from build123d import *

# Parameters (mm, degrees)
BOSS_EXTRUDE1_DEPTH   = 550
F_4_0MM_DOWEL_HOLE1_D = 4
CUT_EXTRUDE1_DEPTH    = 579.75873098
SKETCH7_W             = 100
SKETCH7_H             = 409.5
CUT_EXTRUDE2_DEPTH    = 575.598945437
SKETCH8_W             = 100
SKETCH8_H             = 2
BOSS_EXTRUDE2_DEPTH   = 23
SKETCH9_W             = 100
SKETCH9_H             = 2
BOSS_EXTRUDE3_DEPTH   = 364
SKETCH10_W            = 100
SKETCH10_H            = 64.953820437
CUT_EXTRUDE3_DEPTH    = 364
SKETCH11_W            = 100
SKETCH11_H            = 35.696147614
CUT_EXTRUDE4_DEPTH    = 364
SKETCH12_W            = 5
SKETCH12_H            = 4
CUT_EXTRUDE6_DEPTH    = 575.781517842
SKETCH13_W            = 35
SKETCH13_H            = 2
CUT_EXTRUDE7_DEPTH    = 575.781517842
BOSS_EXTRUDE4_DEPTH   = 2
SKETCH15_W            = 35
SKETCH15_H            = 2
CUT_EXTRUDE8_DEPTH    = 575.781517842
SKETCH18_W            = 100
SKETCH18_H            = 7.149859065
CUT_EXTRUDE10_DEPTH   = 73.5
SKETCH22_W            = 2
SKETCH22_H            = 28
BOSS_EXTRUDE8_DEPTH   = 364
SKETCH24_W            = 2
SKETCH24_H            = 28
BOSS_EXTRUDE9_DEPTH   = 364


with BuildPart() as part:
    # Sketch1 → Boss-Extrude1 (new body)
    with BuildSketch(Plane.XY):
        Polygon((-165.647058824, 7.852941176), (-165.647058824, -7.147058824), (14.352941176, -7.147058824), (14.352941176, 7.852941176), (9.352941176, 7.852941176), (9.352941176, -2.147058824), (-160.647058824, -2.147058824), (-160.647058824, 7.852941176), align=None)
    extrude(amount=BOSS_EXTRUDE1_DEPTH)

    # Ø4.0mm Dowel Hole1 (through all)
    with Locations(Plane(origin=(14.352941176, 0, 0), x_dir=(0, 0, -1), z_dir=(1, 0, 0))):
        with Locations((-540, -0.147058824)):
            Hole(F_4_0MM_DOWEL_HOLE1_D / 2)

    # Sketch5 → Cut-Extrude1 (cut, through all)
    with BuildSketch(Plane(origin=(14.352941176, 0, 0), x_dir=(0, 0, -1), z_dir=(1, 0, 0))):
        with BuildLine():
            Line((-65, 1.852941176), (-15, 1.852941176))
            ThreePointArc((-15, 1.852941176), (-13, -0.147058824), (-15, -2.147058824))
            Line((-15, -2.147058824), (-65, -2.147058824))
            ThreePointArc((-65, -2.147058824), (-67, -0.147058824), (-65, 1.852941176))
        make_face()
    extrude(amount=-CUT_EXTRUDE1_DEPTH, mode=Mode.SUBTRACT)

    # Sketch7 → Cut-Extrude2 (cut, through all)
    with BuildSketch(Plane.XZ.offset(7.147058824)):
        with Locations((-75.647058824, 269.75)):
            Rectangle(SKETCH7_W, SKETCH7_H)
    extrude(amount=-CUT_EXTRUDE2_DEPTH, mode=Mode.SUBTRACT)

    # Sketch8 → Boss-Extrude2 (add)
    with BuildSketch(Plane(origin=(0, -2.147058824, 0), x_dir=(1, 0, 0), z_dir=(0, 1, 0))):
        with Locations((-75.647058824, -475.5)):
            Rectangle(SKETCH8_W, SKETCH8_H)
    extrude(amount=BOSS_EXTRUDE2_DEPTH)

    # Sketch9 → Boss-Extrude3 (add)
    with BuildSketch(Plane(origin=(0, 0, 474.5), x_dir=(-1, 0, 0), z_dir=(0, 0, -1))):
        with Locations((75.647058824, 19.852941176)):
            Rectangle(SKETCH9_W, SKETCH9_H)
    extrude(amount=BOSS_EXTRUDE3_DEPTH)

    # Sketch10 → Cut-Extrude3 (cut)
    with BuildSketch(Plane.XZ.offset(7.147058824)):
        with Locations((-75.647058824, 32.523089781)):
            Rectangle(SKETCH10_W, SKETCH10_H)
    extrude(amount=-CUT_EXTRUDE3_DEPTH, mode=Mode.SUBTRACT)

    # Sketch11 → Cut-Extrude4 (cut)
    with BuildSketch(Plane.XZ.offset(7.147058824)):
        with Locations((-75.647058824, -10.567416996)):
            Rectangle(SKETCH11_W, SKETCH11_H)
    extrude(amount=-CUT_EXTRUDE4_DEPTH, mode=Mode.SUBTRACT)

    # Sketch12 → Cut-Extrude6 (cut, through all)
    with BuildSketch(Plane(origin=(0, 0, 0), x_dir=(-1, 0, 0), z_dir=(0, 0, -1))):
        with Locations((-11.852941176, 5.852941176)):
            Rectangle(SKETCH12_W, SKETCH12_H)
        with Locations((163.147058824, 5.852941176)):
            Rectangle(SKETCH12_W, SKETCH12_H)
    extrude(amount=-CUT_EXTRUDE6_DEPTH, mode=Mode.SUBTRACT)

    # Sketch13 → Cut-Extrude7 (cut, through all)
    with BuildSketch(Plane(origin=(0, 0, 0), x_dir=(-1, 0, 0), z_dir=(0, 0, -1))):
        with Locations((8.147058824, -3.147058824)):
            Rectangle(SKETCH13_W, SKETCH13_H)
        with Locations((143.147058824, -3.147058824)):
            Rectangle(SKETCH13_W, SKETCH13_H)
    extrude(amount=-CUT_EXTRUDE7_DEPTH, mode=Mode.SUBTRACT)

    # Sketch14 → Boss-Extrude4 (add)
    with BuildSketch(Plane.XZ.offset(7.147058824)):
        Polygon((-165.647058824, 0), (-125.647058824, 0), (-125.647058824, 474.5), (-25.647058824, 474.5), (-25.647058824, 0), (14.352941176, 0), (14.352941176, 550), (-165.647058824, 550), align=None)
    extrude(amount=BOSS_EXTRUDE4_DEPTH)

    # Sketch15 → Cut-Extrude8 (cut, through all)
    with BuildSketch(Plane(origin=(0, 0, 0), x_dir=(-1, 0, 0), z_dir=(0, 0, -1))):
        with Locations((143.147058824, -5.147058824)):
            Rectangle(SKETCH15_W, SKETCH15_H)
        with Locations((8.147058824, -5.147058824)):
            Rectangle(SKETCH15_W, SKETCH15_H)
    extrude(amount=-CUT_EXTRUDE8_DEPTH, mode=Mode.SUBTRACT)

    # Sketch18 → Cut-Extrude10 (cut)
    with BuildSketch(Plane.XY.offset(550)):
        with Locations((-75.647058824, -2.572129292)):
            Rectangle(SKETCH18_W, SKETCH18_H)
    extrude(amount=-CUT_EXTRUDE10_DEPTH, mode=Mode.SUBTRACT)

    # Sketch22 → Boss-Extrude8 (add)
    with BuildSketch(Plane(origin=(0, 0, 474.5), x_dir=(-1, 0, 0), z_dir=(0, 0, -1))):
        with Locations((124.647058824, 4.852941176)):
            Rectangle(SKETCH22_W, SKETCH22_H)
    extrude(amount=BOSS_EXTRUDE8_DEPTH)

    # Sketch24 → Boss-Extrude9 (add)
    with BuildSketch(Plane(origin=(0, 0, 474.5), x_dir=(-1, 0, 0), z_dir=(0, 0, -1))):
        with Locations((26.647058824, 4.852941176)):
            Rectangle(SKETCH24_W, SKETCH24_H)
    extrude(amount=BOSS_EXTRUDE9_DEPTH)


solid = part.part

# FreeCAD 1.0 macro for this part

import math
import FreeCAD as App
import Part
import Sketcher
Q = App.Units.Quantity

doc = App.newDocument("Part")
body = doc.addObject("PartDesign::Body", "Body")

# Sketch on XY plane
sketch1 = body.newObject("Sketcher::SketchObject", "Sketch")
sketch1.AttachmentSupport = (doc.getObject("XY_Plane"), [""])
sketch1.MapMode = "FlatFace"
sketch1.addGeometry([
    Part.LineSegment(App.Vector(-165.647059, 7.852941, 0), App.Vector(-165.647059, -7.147059, 0)),  # 0
    Part.LineSegment(App.Vector(-165.647059, -7.147059, 0), App.Vector(14.352941, -7.147059, 0)),  # 1
    Part.LineSegment(App.Vector(14.352941, -7.147059, 0), App.Vector(14.352941, 7.852941, 0)),  # 2
    Part.LineSegment(App.Vector(14.352941, 7.852941, 0), App.Vector(9.352941, 7.852941, 0)),  # 3
    Part.LineSegment(App.Vector(9.352941, 7.852941, 0), App.Vector(9.352941, -2.147059, 0)),  # 4
    Part.LineSegment(App.Vector(9.352941, -2.147059, 0), App.Vector(-160.647059, -2.147059, 0)),  # 5
    Part.LineSegment(App.Vector(-160.647059, -2.147059, 0), App.Vector(-160.647059, 7.852941, 0)),  # 6
    Part.LineSegment(App.Vector(-160.647059, 7.852941, 0), App.Vector(-165.647059, 7.852941, 0)),  # 7
], False)
sketch1.addConstraint([
    Sketcher.Constraint("Coincident", 0, 2, 1, 1),
    Sketcher.Constraint("Coincident", 1, 2, 2, 1),
    Sketcher.Constraint("Coincident", 2, 2, 3, 1),
    Sketcher.Constraint("Coincident", 3, 2, 4, 1),
    Sketcher.Constraint("Coincident", 4, 2, 5, 1),
    Sketcher.Constraint("Coincident", 5, 2, 6, 1),
    Sketcher.Constraint("Coincident", 6, 2, 7, 1),
    Sketcher.Constraint("Coincident", 7, 2, 0, 1),
    Sketcher.Constraint("Vertical", 0),
    Sketcher.Constraint("Horizontal", 1),
    Sketcher.Constraint("Vertical", 2),
    Sketcher.Constraint("Horizontal", 3),
    Sketcher.Constraint("Vertical", 4),
    Sketcher.Constraint("Horizontal", 5),
    Sketcher.Constraint("Vertical", 6),
    Sketcher.Constraint("Horizontal", 7),
    Sketcher.Constraint("Horizontal", 3, 2, 6, 2),
    Sketcher.Constraint("Equal", 3, 7),
    Sketcher.Constraint("DistanceX", 1, 1, 1, 2, Q("180 mm")),
    Sketcher.Constraint("DistanceX", 3, 2, 3, 1, Q("5 mm")),
    Sketcher.Constraint("DistanceY", 0, 2, 0, 1, Q("15 mm")),
    Sketcher.Constraint("DistanceY", 4, 2, 4, 1, Q("10 mm")),
    Sketcher.Constraint("DistanceX", 0, 2, -1, 1, Q("165.647059 mm")),
    Sketcher.Constraint("DistanceY", 0, 2, -1, 1, Q("7.147059 mm")),
])
pad1 = body.newObject("PartDesign::Pad", "Pad")
pad1.Profile = sketch1
pad1.Length = 550

# Sketch on YZ plane
sketch2 = body.newObject("Sketcher::SketchObject", "Sketch001")
sketch2.AttachmentSupport = (doc.getObject("YZ_Plane"), [""])
sketch2.MapMode = "FlatFace"
sketch2.AttachmentOffset = App.Placement(App.Vector(0, 0, 14.352941), App.Rotation())
sketch2.addGeometry(Part.Circle(App.Vector(-0.147059, 540, 0), App.Vector(0, 0, 1), 2), False)
sketch2.addConstraint([
    Sketcher.Constraint("Diameter", 0, Q("4 mm")),
    Sketcher.Constraint("DistanceY", -1, 1, 0, 3, Q("540 mm")),
    Sketcher.Constraint("DistanceX", 0, 3, -1, 1, Q("0.147059 mm")),
])
doc.recompute()
hole = body.newObject("PartDesign::Hole", "Hole")
hole.Profile = sketch2
hole.ThreadType = "None"
hole.Diameter = 4
hole.DepthType = "ThroughAll"

# Sketch on YZ plane
sketch3 = body.newObject("Sketcher::SketchObject", "Sketch002")
sketch3.AttachmentSupport = (doc.getObject("YZ_Plane"), [""])
sketch3.MapMode = "FlatFace"
sketch3.AttachmentOffset = App.Placement(App.Vector(0, 0, 14.352941), App.Rotation())
sketch3.addGeometry([
    Part.LineSegment(App.Vector(1.852941, 15, 0), App.Vector(1.852941, 65, 0)),
    Part.ArcOfCircle(Part.Circle(App.Vector(-0.147059, 65, 0), App.Vector(0, 0, 1), 2), math.radians(0), math.radians(180)),
    Part.LineSegment(App.Vector(-2.147059, 65, 0), App.Vector(-2.147059, 15, 0)),
    Part.ArcOfCircle(Part.Circle(App.Vector(-0.147059, 15, 0), App.Vector(0, 0, 1), 2), math.radians(180), math.radians(360)),
], False)
sketch3.addConstraint([
    Sketcher.Constraint("Tangent", 0, 2, 1, 1),
    Sketcher.Constraint("Tangent", 1, 2, 2, 1),
    Sketcher.Constraint("Tangent", 2, 2, 3, 1),
    Sketcher.Constraint("Tangent", 3, 2, 0, 1),
    Sketcher.Constraint("Vertical", 0),
    Sketcher.Constraint("Vertical", 2),
    Sketcher.Constraint("Radius", 1, Q("2 mm")),
    Sketcher.Constraint("DistanceY", 0, 1, 0, 2, Q("50 mm")),
    Sketcher.Constraint("DistanceY", -1, 1, 1, 3, Q("65 mm")),
    Sketcher.Constraint("DistanceX", 1, 3, -1, 1, Q("0.147059 mm")),
])
pocket1 = body.newObject("PartDesign::Pocket", "Pocket")
pocket1.Profile = sketch3
pocket1.Type = "ThroughAll"

# Sketch on XZ plane
sketch4 = body.newObject("Sketcher::SketchObject", "Sketch003")
sketch4.AttachmentSupport = (doc.getObject("XZ_Plane"), [""])
sketch4.MapMode = "FlatFace"
sketch4.AttachmentOffset = App.Placement(App.Vector(0, 0, 7.147059), App.Rotation())
sketch4.addGeometry([
    Part.LineSegment(App.Vector(-125.647059, 474.5, 0), App.Vector(-125.647059, 65, 0)),
    Part.LineSegment(App.Vector(-125.647059, 65, 0), App.Vector(-25.647059, 65, 0)),
    Part.LineSegment(App.Vector(-25.647059, 65, 0), App.Vector(-25.647059, 474.5, 0)),
    Part.LineSegment(App.Vector(-25.647059, 474.5, 0), App.Vector(-125.647059, 474.5, 0)),
], False)
sketch4.addConstraint([
    Sketcher.Constraint("Coincident", 0, 2, 1, 1),
    Sketcher.Constraint("Coincident", 1, 2, 2, 1),
    Sketcher.Constraint("Coincident", 2, 2, 3, 1),
    Sketcher.Constraint("Coincident", 3, 2, 0, 1),
    Sketcher.Constraint("Vertical", 0),
    Sketcher.Constraint("Horizontal", 1),
    Sketcher.Constraint("Vertical", 2),
    Sketcher.Constraint("Horizontal", 3),
    Sketcher.Constraint("DistanceX", 1, 1, 1, 2, Q("100 mm")),
    Sketcher.Constraint("DistanceY", 0, 2, 0, 1, Q("409.5 mm")),
    Sketcher.Constraint("DistanceY", -1, 1, 0, 2, Q("65 mm")),
    Sketcher.Constraint("DistanceX", 0, 2, -1, 1, Q("125.647059 mm")),
])
pocket2 = body.newObject("PartDesign::Pocket", "Pocket001")
pocket2.Profile = sketch4
pocket2.Type = "ThroughAll"

# Sketch on XZ plane
sketch5 = body.newObject("Sketcher::SketchObject", "Sketch004")
sketch5.AttachmentSupport = (doc.getObject("XZ_Plane"), [""])
sketch5.MapMode = "FlatFace"
sketch5.AttachmentOffset = App.Placement(App.Vector(0, 0, 2.147059), App.Rotation())
sketch5.addGeometry([
    Part.LineSegment(App.Vector(-125.647059, 474.5, 0), App.Vector(-125.647059, 476.5, 0)),
    Part.LineSegment(App.Vector(-125.647059, 476.5, 0), App.Vector(-25.647059, 476.5, 0)),
    Part.LineSegment(App.Vector(-25.647059, 476.5, 0), App.Vector(-25.647059, 474.5, 0)),
    Part.LineSegment(App.Vector(-25.647059, 474.5, 0), App.Vector(-125.647059, 474.5, 0)),
], False)
sketch5.addConstraint([
    Sketcher.Constraint("Coincident", 0, 2, 1, 1),
    Sketcher.Constraint("Coincident", 1, 2, 2, 1),
    Sketcher.Constraint("Coincident", 2, 2, 3, 1),
    Sketcher.Constraint("Coincident", 3, 2, 0, 1),
    Sketcher.Constraint("Vertical", 0),
    Sketcher.Constraint("Horizontal", 1),
    Sketcher.Constraint("Vertical", 2),
    Sketcher.Constraint("Horizontal", 3),
    Sketcher.Constraint("DistanceX", 1, 1, 1, 2, Q("100 mm")),
    Sketcher.Constraint("DistanceY", 0, 1, 0, 2, Q("2 mm")),
    Sketcher.Constraint("DistanceY", -1, 1, 0, 2, Q("476.5 mm")),
    Sketcher.Constraint("DistanceX", 0, 2, -1, 1, Q("125.647059 mm")),
])
pad2 = body.newObject("PartDesign::Pad", "Pad001")
pad2.Profile = sketch5
pad2.Length = 23
pad2.Reversed = True

# Sketch on XY plane
sketch6 = body.newObject("Sketcher::SketchObject", "Sketch005")
sketch6.AttachmentSupport = (doc.getObject("XY_Plane"), [""])
sketch6.MapMode = "FlatFace"
sketch6.AttachmentOffset = App.Placement(App.Vector(0, 0, 474.5), App.Rotation())
sketch6.addGeometry([
    Part.LineSegment(App.Vector(-25.647059, 20.852941, 0), App.Vector(-25.647059, 18.852941, 0)),
    Part.LineSegment(App.Vector(-25.647059, 18.852941, 0), App.Vector(-125.647059, 18.852941, 0)),
    Part.LineSegment(App.Vector(-125.647059, 18.852941, 0), App.Vector(-125.647059, 20.852941, 0)),
    Part.LineSegment(App.Vector(-125.647059, 20.852941, 0), App.Vector(-25.647059, 20.852941, 0)),
], False)
sketch6.addConstraint([
    Sketcher.Constraint("Coincident", 0, 2, 1, 1),
    Sketcher.Constraint("Coincident", 1, 2, 2, 1),
    Sketcher.Constraint("Coincident", 2, 2, 3, 1),
    Sketcher.Constraint("Coincident", 3, 2, 0, 1),
    Sketcher.Constraint("Vertical", 0),
    Sketcher.Constraint("Horizontal", 1),
    Sketcher.Constraint("Vertical", 2),
    Sketcher.Constraint("Horizontal", 3),
    Sketcher.Constraint("DistanceX", 1, 2, 1, 1, Q("100 mm")),
    Sketcher.Constraint("DistanceY", 0, 2, 0, 1, Q("2 mm")),
    Sketcher.Constraint("DistanceX", 0, 2, -1, 1, Q("25.647059 mm")),
    Sketcher.Constraint("DistanceY", -1, 1, 0, 2, Q("18.852941 mm")),
])
pad3 = body.newObject("PartDesign::Pad", "Pad002")
pad3.Profile = sketch6
pad3.Length = 364
pad3.Reversed = True

# Sketch on XZ plane
sketch7 = body.newObject("Sketcher::SketchObject", "Sketch006")
sketch7.AttachmentSupport = (doc.getObject("XZ_Plane"), [""])
sketch7.MapMode = "FlatFace"
sketch7.AttachmentOffset = App.Placement(App.Vector(0, 0, 7.147059), App.Rotation())
sketch7.addGeometry([
    Part.LineSegment(App.Vector(-125.647059, 65, 0), App.Vector(-125.647059, 0.04618, 0)),
    Part.LineSegment(App.Vector(-125.647059, 0.04618, 0), App.Vector(-25.647059, 0.04618, 0)),
    Part.LineSegment(App.Vector(-25.647059, 0.04618, 0), App.Vector(-25.647059, 65, 0)),
    Part.LineSegment(App.Vector(-25.647059, 65, 0), App.Vector(-125.647059, 65, 0)),
], False)
sketch7.addConstraint([
    Sketcher.Constraint("Coincident", 0, 2, 1, 1),
    Sketcher.Constraint("Coincident", 1, 2, 2, 1),
    Sketcher.Constraint("Coincident", 2, 2, 3, 1),
    Sketcher.Constraint("Coincident", 3, 2, 0, 1),
    Sketcher.Constraint("Vertical", 0),
    Sketcher.Constraint("Horizontal", 1),
    Sketcher.Constraint("Vertical", 2),
    Sketcher.Constraint("Horizontal", 3),
    Sketcher.Constraint("DistanceX", 1, 1, 1, 2, Q("100 mm")),
    Sketcher.Constraint("DistanceY", -1, 1, 2, 2, Q("65 mm")),
    Sketcher.Constraint("DistanceY", 0, 2, 0, 1, Q("64.95382 mm")),
    Sketcher.Constraint("DistanceX", 0, 2, -1, 1, Q("125.647059 mm")),
])
pocket3 = body.newObject("PartDesign::Pocket", "Pocket002")
pocket3.Profile = sketch7
pocket3.Length = 364

# Sketch on XZ plane
sketch8 = body.newObject("Sketcher::SketchObject", "Sketch007")
sketch8.AttachmentSupport = (doc.getObject("XZ_Plane"), [""])
sketch8.MapMode = "FlatFace"
sketch8.AttachmentOffset = App.Placement(App.Vector(0, 0, 7.147059), App.Rotation())
sketch8.addGeometry([
    Part.LineSegment(App.Vector(-125.647059, 7.280657, 0), App.Vector(-125.647059, -28.415491, 0)),
    Part.LineSegment(App.Vector(-125.647059, -28.415491, 0), App.Vector(-25.647059, -28.415491, 0)),
    Part.LineSegment(App.Vector(-25.647059, -28.415491, 0), App.Vector(-25.647059, 7.280657, 0)),
    Part.LineSegment(App.Vector(-25.647059, 7.280657, 0), App.Vector(-125.647059, 7.280657, 0)),
], False)
sketch8.addConstraint([
    Sketcher.Constraint("Coincident", 0, 2, 1, 1),
    Sketcher.Constraint("Coincident", 1, 2, 2, 1),
    Sketcher.Constraint("Coincident", 2, 2, 3, 1),
    Sketcher.Constraint("Coincident", 3, 2, 0, 1),
    Sketcher.Constraint("Vertical", 0),
    Sketcher.Constraint("Horizontal", 1),
    Sketcher.Constraint("Vertical", 2),
    Sketcher.Constraint("Horizontal", 3),
    Sketcher.Constraint("DistanceX", 1, 1, 1, 2, Q("100 mm")),
    Sketcher.Constraint("DistanceY", 0, 2, 0, 1, Q("35.696148 mm")),
    Sketcher.Constraint("DistanceX", 0, 2, -1, 1, Q("125.647059 mm")),
    Sketcher.Constraint("DistanceY", 0, 2, -1, 1, Q("28.415491 mm")),
])
pocket4 = body.newObject("PartDesign::Pocket", "Pocket003")
pocket4.Profile = sketch8
pocket4.Length = 364

# Sketch on XY plane
sketch9 = body.newObject("Sketcher::SketchObject", "Sketch008")
sketch9.AttachmentSupport = (doc.getObject("XY_Plane"), [""])
sketch9.MapMode = "FlatFace"
sketch9.addGeometry([
    Part.LineSegment(App.Vector(14.352941, 7.852941, 0), App.Vector(14.352941, 3.852941, 0)),  # 0
    Part.LineSegment(App.Vector(14.352941, 3.852941, 0), App.Vector(9.352941, 3.852941, 0)),  # 1
    Part.LineSegment(App.Vector(9.352941, 3.852941, 0), App.Vector(9.352941, 7.852941, 0)),  # 2
    Part.LineSegment(App.Vector(9.352941, 7.852941, 0), App.Vector(14.352941, 7.852941, 0)),  # 3
    Part.LineSegment(App.Vector(-160.647059, 7.852941, 0), App.Vector(-160.647059, 3.852941, 0)),  # 4
    Part.LineSegment(App.Vector(-160.647059, 3.852941, 0), App.Vector(-165.647059, 3.852941, 0)),  # 5
    Part.LineSegment(App.Vector(-165.647059, 3.852941, 0), App.Vector(-165.647059, 7.852941, 0)),  # 6
    Part.LineSegment(App.Vector(-165.647059, 7.852941, 0), App.Vector(-160.647059, 7.852941, 0)),  # 7
], False)
sketch9.addConstraint([
    Sketcher.Constraint("Coincident", 0, 2, 1, 1),
    Sketcher.Constraint("Coincident", 1, 2, 2, 1),
    Sketcher.Constraint("Coincident", 2, 2, 3, 1),
    Sketcher.Constraint("Coincident", 3, 2, 0, 1),
    Sketcher.Constraint("Coincident", 4, 2, 5, 1),
    Sketcher.Constraint("Coincident", 5, 2, 6, 1),
    Sketcher.Constraint("Coincident", 6, 2, 7, 1),
    Sketcher.Constraint("Coincident", 7, 2, 4, 1),
    Sketcher.Constraint("Vertical", 0),
    Sketcher.Constraint("Horizontal", 1),
    Sketcher.Constraint("Vertical", 2),
    Sketcher.Constraint("Horizontal", 3),
    Sketcher.Constraint("Vertical", 4),
    Sketcher.Constraint("Horizontal", 5),
    Sketcher.Constraint("Vertical", 6),
    Sketcher.Constraint("Horizontal", 7),
    Sketcher.Constraint("Horizontal", 1, 2, 4, 2),
    Sketcher.Constraint("Horizontal", 3, 2, 6, 2),
    Sketcher.Constraint("Equal", 3, 5),
    Sketcher.Constraint("DistanceX", 1, 2, 1, 1, Q("5 mm")),
    Sketcher.Constraint("DistanceY", 0, 2, 0, 1, Q("4 mm")),
    Sketcher.Constraint("DistanceX", 4, 2, 1, 2, Q("170 mm")),
    Sketcher.Constraint("DistanceX", -1, 1, 0, 2, Q("14.352941 mm")),
    Sketcher.Constraint("DistanceY", -1, 1, 0, 2, Q("3.852941 mm")),
])
pocket5 = body.newObject("PartDesign::Pocket", "Pocket004")
pocket5.Profile = sketch9
pocket5.Type = "ThroughAll"
pocket5.Reversed = True

# Sketch on XY plane
sketch10 = body.newObject("Sketcher::SketchObject", "Sketch009")
sketch10.AttachmentSupport = (doc.getObject("XY_Plane"), [""])
sketch10.MapMode = "FlatFace"
sketch10.addGeometry([
    Part.LineSegment(App.Vector(9.352941, -2.147059, 0), App.Vector(9.352941, -4.147059, 0)),  # 0
    Part.LineSegment(App.Vector(9.352941, -4.147059, 0), App.Vector(-25.647059, -4.147059, 0)),  # 1
    Part.LineSegment(App.Vector(-25.647059, -4.147059, 0), App.Vector(-25.647059, -2.147059, 0)),  # 2
    Part.LineSegment(App.Vector(-25.647059, -2.147059, 0), App.Vector(9.352941, -2.147059, 0)),  # 3
    Part.LineSegment(App.Vector(-125.647059, -2.147059, 0), App.Vector(-125.647059, -4.147059, 0)),  # 4
    Part.LineSegment(App.Vector(-125.647059, -4.147059, 0), App.Vector(-160.647059, -4.147059, 0)),  # 5
    Part.LineSegment(App.Vector(-160.647059, -4.147059, 0), App.Vector(-160.647059, -2.147059, 0)),  # 6
    Part.LineSegment(App.Vector(-160.647059, -2.147059, 0), App.Vector(-125.647059, -2.147059, 0)),  # 7
], False)
sketch10.addConstraint([
    Sketcher.Constraint("Coincident", 0, 2, 1, 1),
    Sketcher.Constraint("Coincident", 1, 2, 2, 1),
    Sketcher.Constraint("Coincident", 2, 2, 3, 1),
    Sketcher.Constraint("Coincident", 3, 2, 0, 1),
    Sketcher.Constraint("Coincident", 4, 2, 5, 1),
    Sketcher.Constraint("Coincident", 5, 2, 6, 1),
    Sketcher.Constraint("Coincident", 6, 2, 7, 1),
    Sketcher.Constraint("Coincident", 7, 2, 4, 1),
    Sketcher.Constraint("Vertical", 0),
    Sketcher.Constraint("Horizontal", 1),
    Sketcher.Constraint("Vertical", 2),
    Sketcher.Constraint("Horizontal", 3),
    Sketcher.Constraint("Vertical", 4),
    Sketcher.Constraint("Horizontal", 5),
    Sketcher.Constraint("Vertical", 6),
    Sketcher.Constraint("Horizontal", 7),
    Sketcher.Constraint("Horizontal", 1, 2, 4, 2),
    Sketcher.Constraint("Horizontal", 3, 2, 6, 2),
    Sketcher.Constraint("Equal", 3, 5),
    Sketcher.Constraint("DistanceX", 1, 2, 1, 1, Q("35 mm")),
    Sketcher.Constraint("DistanceY", 0, 2, 0, 1, Q("2 mm")),
    Sketcher.Constraint("DistanceX", 4, 2, 1, 2, Q("100 mm")),
    Sketcher.Constraint("DistanceX", -1, 1, 0, 2, Q("9.352941 mm")),
    Sketcher.Constraint("DistanceY", 0, 2, -1, 1, Q("4.147059 mm")),
])
pocket6 = body.newObject("PartDesign::Pocket", "Pocket005")
pocket6.Profile = sketch10
pocket6.Type = "ThroughAll"
pocket6.Reversed = True

# Sketch on XZ plane
sketch11 = body.newObject("Sketcher::SketchObject", "Sketch010")
sketch11.AttachmentSupport = (doc.getObject("XZ_Plane"), [""])
sketch11.MapMode = "FlatFace"
sketch11.AttachmentOffset = App.Placement(App.Vector(0, 0, 7.147059), App.Rotation())
sketch11.addGeometry([
    Part.LineSegment(App.Vector(-165.647059, 0, 0), App.Vector(-125.647059, 0, 0)),  # 0
    Part.LineSegment(App.Vector(-125.647059, 0, 0), App.Vector(-125.647059, 474.5, 0)),  # 1
    Part.LineSegment(App.Vector(-125.647059, 474.5, 0), App.Vector(-25.647059, 474.5, 0)),  # 2
    Part.LineSegment(App.Vector(-25.647059, 474.5, 0), App.Vector(-25.647059, 0, 0)),  # 3
    Part.LineSegment(App.Vector(-25.647059, 0, 0), App.Vector(14.352941, 0, 0)),  # 4
    Part.LineSegment(App.Vector(14.352941, 0, 0), App.Vector(14.352941, 550, 0)),  # 5
    Part.LineSegment(App.Vector(14.352941, 550, 0), App.Vector(-165.647059, 550, 0)),  # 6
    Part.LineSegment(App.Vector(-165.647059, 550, 0), App.Vector(-165.647059, 0, 0)),  # 7
], False)
sketch11.addConstraint([
    Sketcher.Constraint("Coincident", 0, 2, 1, 1),
    Sketcher.Constraint("Coincident", 1, 2, 2, 1),
    Sketcher.Constraint("Coincident", 2, 2, 3, 1),
    Sketcher.Constraint("Coincident", 3, 2, 4, 1),
    Sketcher.Constraint("Coincident", 4, 2, 5, 1),
    Sketcher.Constraint("Coincident", 5, 2, 6, 1),
    Sketcher.Constraint("Coincident", 6, 2, 7, 1),
    Sketcher.Constraint("Coincident", 7, 2, 0, 1),
    Sketcher.Constraint("Horizontal", 0),
    Sketcher.Constraint("Vertical", 1),
    Sketcher.Constraint("Horizontal", 2),
    Sketcher.Constraint("Vertical", 3),
    Sketcher.Constraint("Horizontal", 4),
    Sketcher.Constraint("Vertical", 5),
    Sketcher.Constraint("Horizontal", 6),
    Sketcher.Constraint("Vertical", 7),
    Sketcher.Constraint("PointOnObject", 0, 2, -1),
    Sketcher.Constraint("PointOnObject", 3, 2, -1),
    Sketcher.Constraint("Equal", 0, 4),
    Sketcher.Constraint("DistanceX", 0, 1, 0, 2, Q("40 mm")),
    Sketcher.Constraint("DistanceX", 2, 1, 2, 2, Q("100 mm")),
    Sketcher.Constraint("DistanceY", 5, 1, 5, 2, Q("550 mm")),
    Sketcher.Constraint("DistanceY", 1, 1, 1, 2, Q("474.5 mm")),
    Sketcher.Constraint("DistanceX", 0, 2, -1, 1, Q("125.647059 mm")),
])
pad4 = body.newObject("PartDesign::Pad", "Pad003")
pad4.Profile = sketch11
pad4.Length = 2

# Sketch on XY plane
sketch12 = body.newObject("Sketcher::SketchObject", "Sketch011")
sketch12.AttachmentSupport = (doc.getObject("XY_Plane"), [""])
sketch12.MapMode = "FlatFace"
sketch12.addGeometry([
    Part.LineSegment(App.Vector(-125.647059, -4.147059, 0), App.Vector(-125.647059, -6.147059, 0)),  # 0
    Part.LineSegment(App.Vector(-125.647059, -6.147059, 0), App.Vector(-160.647059, -6.147059, 0)),  # 1
    Part.LineSegment(App.Vector(-160.647059, -6.147059, 0), App.Vector(-160.647059, -4.147059, 0)),  # 2
    Part.LineSegment(App.Vector(-160.647059, -4.147059, 0), App.Vector(-125.647059, -4.147059, 0)),  # 3
    Part.LineSegment(App.Vector(9.352941, -4.147059, 0), App.Vector(9.352941, -6.147059, 0)),  # 4
    Part.LineSegment(App.Vector(9.352941, -6.147059, 0), App.Vector(-25.647059, -6.147059, 0)),  # 5
    Part.LineSegment(App.Vector(-25.647059, -6.147059, 0), App.Vector(-25.647059, -4.147059, 0)),  # 6
    Part.LineSegment(App.Vector(-25.647059, -4.147059, 0), App.Vector(9.352941, -4.147059, 0)),  # 7
], False)
sketch12.addConstraint([
    Sketcher.Constraint("Coincident", 0, 2, 1, 1),
    Sketcher.Constraint("Coincident", 1, 2, 2, 1),
    Sketcher.Constraint("Coincident", 2, 2, 3, 1),
    Sketcher.Constraint("Coincident", 3, 2, 0, 1),
    Sketcher.Constraint("Coincident", 4, 2, 5, 1),
    Sketcher.Constraint("Coincident", 5, 2, 6, 1),
    Sketcher.Constraint("Coincident", 6, 2, 7, 1),
    Sketcher.Constraint("Coincident", 7, 2, 4, 1),
    Sketcher.Constraint("Vertical", 0),
    Sketcher.Constraint("Horizontal", 1),
    Sketcher.Constraint("Vertical", 2),
    Sketcher.Constraint("Horizontal", 3),
    Sketcher.Constraint("Vertical", 4),
    Sketcher.Constraint("Horizontal", 5),
    Sketcher.Constraint("Vertical", 6),
    Sketcher.Constraint("Horizontal", 7),
    Sketcher.Constraint("Horizontal", 1, 2, 4, 2),
    Sketcher.Constraint("Horizontal", 3, 2, 6, 2),
    Sketcher.Constraint("Equal", 3, 5),
    Sketcher.Constraint("DistanceX", 1, 2, 1, 1, Q("35 mm")),
    Sketcher.Constraint("DistanceY", 0, 2, 0, 1, Q("2 mm")),
    Sketcher.Constraint("DistanceX", 0, 2, 4, 2, Q("135 mm")),
    Sketcher.Constraint("DistanceX", 0, 2, -1, 1, Q("125.647059 mm")),
    Sketcher.Constraint("DistanceY", 0, 2, -1, 1, Q("6.147059 mm")),
])
pocket7 = body.newObject("PartDesign::Pocket", "Pocket006")
pocket7.Profile = sketch12
pocket7.Type = "ThroughAll"
pocket7.Reversed = True

# Sketch on XY plane
sketch13 = body.newObject("Sketcher::SketchObject", "Sketch012")
sketch13.AttachmentSupport = (doc.getObject("XY_Plane"), [""])
sketch13.MapMode = "FlatFace"
sketch13.AttachmentOffset = App.Placement(App.Vector(0, 0, 550), App.Rotation())
sketch13.addGeometry([
    Part.LineSegment(App.Vector(-125.647059, 1.0028, 0), App.Vector(-125.647059, -6.147059, 0)),
    Part.LineSegment(App.Vector(-125.647059, -6.147059, 0), App.Vector(-25.647059, -6.147059, 0)),
    Part.LineSegment(App.Vector(-25.647059, -6.147059, 0), App.Vector(-25.647059, 1.0028, 0)),
    Part.LineSegment(App.Vector(-25.647059, 1.0028, 0), App.Vector(-125.647059, 1.0028, 0)),
], False)
sketch13.addConstraint([
    Sketcher.Constraint("Coincident", 0, 2, 1, 1),
    Sketcher.Constraint("Coincident", 1, 2, 2, 1),
    Sketcher.Constraint("Coincident", 2, 2, 3, 1),
    Sketcher.Constraint("Coincident", 3, 2, 0, 1),
    Sketcher.Constraint("Vertical", 0),
    Sketcher.Constraint("Horizontal", 1),
    Sketcher.Constraint("Vertical", 2),
    Sketcher.Constraint("Horizontal", 3),
    Sketcher.Constraint("DistanceX", 1, 1, 1, 2, Q("100 mm")),
    Sketcher.Constraint("DistanceY", 0, 2, 0, 1, Q("7.149859 mm")),
    Sketcher.Constraint("DistanceY", -1, 1, 2, 2, Q("1.0028 mm")),
    Sketcher.Constraint("DistanceX", 0, 2, -1, 1, Q("125.647059 mm")),
])
pocket8 = body.newObject("PartDesign::Pocket", "Pocket007")
pocket8.Profile = sketch13
pocket8.Length = 73.5

# Sketch on XY plane
sketch14 = body.newObject("Sketcher::SketchObject", "Sketch013")
sketch14.AttachmentSupport = (doc.getObject("XY_Plane"), [""])
sketch14.MapMode = "FlatFace"
sketch14.AttachmentOffset = App.Placement(App.Vector(0, 0, 474.5), App.Rotation())
sketch14.addGeometry([
    Part.LineSegment(App.Vector(-123.647059, 18.852941, 0), App.Vector(-123.647059, -9.147059, 0)),
    Part.LineSegment(App.Vector(-123.647059, -9.147059, 0), App.Vector(-125.647059, -9.147059, 0)),
    Part.LineSegment(App.Vector(-125.647059, -9.147059, 0), App.Vector(-125.647059, 18.852941, 0)),
    Part.LineSegment(App.Vector(-125.647059, 18.852941, 0), App.Vector(-123.647059, 18.852941, 0)),
], False)
sketch14.addConstraint([
    Sketcher.Constraint("Coincident", 0, 2, 1, 1),
    Sketcher.Constraint("Coincident", 1, 2, 2, 1),
    Sketcher.Constraint("Coincident", 2, 2, 3, 1),
    Sketcher.Constraint("Coincident", 3, 2, 0, 1),
    Sketcher.Constraint("Vertical", 0),
    Sketcher.Constraint("Horizontal", 1),
    Sketcher.Constraint("Vertical", 2),
    Sketcher.Constraint("Horizontal", 3),
    Sketcher.Constraint("DistanceX", 1, 2, 1, 1, Q("2 mm")),
    Sketcher.Constraint("DistanceY", 0, 2, 0, 1, Q("28 mm")),
    Sketcher.Constraint("DistanceX", 0, 2, -1, 1, Q("123.647059 mm")),
    Sketcher.Constraint("DistanceY", 0, 2, -1, 1, Q("9.147059 mm")),
])
pad5 = body.newObject("PartDesign::Pad", "Pad004")
pad5.Profile = sketch14
pad5.Length = 364
pad5.Reversed = True

# Sketch on XY plane
sketch15 = body.newObject("Sketcher::SketchObject", "Sketch014")
sketch15.AttachmentSupport = (doc.getObject("XY_Plane"), [""])
sketch15.MapMode = "FlatFace"
sketch15.AttachmentOffset = App.Placement(App.Vector(0, 0, 474.5), App.Rotation())
sketch15.addGeometry([
    Part.LineSegment(App.Vector(-25.647059, 18.852941, 0), App.Vector(-25.647059, -9.147059, 0)),
    Part.LineSegment(App.Vector(-25.647059, -9.147059, 0), App.Vector(-27.647059, -9.147059, 0)),
    Part.LineSegment(App.Vector(-27.647059, -9.147059, 0), App.Vector(-27.647059, 18.852941, 0)),
    Part.LineSegment(App.Vector(-27.647059, 18.852941, 0), App.Vector(-25.647059, 18.852941, 0)),
], False)
sketch15.addConstraint([
    Sketcher.Constraint("Coincident", 0, 2, 1, 1),
    Sketcher.Constraint("Coincident", 1, 2, 2, 1),
    Sketcher.Constraint("Coincident", 2, 2, 3, 1),
    Sketcher.Constraint("Coincident", 3, 2, 0, 1),
    Sketcher.Constraint("Vertical", 0),
    Sketcher.Constraint("Horizontal", 1),
    Sketcher.Constraint("Vertical", 2),
    Sketcher.Constraint("Horizontal", 3),
    Sketcher.Constraint("DistanceX", 1, 2, 1, 1, Q("2 mm")),
    Sketcher.Constraint("DistanceY", 0, 2, 0, 1, Q("28 mm")),
    Sketcher.Constraint("DistanceX", 0, 2, -1, 1, Q("25.647059 mm")),
    Sketcher.Constraint("DistanceY", 0, 2, -1, 1, Q("9.147059 mm")),
])
pad6 = body.newObject("PartDesign::Pad", "Pad005")
pad6.Profile = sketch15
pad6.Length = 364
pad6.Reversed = True

doc.recompute()
